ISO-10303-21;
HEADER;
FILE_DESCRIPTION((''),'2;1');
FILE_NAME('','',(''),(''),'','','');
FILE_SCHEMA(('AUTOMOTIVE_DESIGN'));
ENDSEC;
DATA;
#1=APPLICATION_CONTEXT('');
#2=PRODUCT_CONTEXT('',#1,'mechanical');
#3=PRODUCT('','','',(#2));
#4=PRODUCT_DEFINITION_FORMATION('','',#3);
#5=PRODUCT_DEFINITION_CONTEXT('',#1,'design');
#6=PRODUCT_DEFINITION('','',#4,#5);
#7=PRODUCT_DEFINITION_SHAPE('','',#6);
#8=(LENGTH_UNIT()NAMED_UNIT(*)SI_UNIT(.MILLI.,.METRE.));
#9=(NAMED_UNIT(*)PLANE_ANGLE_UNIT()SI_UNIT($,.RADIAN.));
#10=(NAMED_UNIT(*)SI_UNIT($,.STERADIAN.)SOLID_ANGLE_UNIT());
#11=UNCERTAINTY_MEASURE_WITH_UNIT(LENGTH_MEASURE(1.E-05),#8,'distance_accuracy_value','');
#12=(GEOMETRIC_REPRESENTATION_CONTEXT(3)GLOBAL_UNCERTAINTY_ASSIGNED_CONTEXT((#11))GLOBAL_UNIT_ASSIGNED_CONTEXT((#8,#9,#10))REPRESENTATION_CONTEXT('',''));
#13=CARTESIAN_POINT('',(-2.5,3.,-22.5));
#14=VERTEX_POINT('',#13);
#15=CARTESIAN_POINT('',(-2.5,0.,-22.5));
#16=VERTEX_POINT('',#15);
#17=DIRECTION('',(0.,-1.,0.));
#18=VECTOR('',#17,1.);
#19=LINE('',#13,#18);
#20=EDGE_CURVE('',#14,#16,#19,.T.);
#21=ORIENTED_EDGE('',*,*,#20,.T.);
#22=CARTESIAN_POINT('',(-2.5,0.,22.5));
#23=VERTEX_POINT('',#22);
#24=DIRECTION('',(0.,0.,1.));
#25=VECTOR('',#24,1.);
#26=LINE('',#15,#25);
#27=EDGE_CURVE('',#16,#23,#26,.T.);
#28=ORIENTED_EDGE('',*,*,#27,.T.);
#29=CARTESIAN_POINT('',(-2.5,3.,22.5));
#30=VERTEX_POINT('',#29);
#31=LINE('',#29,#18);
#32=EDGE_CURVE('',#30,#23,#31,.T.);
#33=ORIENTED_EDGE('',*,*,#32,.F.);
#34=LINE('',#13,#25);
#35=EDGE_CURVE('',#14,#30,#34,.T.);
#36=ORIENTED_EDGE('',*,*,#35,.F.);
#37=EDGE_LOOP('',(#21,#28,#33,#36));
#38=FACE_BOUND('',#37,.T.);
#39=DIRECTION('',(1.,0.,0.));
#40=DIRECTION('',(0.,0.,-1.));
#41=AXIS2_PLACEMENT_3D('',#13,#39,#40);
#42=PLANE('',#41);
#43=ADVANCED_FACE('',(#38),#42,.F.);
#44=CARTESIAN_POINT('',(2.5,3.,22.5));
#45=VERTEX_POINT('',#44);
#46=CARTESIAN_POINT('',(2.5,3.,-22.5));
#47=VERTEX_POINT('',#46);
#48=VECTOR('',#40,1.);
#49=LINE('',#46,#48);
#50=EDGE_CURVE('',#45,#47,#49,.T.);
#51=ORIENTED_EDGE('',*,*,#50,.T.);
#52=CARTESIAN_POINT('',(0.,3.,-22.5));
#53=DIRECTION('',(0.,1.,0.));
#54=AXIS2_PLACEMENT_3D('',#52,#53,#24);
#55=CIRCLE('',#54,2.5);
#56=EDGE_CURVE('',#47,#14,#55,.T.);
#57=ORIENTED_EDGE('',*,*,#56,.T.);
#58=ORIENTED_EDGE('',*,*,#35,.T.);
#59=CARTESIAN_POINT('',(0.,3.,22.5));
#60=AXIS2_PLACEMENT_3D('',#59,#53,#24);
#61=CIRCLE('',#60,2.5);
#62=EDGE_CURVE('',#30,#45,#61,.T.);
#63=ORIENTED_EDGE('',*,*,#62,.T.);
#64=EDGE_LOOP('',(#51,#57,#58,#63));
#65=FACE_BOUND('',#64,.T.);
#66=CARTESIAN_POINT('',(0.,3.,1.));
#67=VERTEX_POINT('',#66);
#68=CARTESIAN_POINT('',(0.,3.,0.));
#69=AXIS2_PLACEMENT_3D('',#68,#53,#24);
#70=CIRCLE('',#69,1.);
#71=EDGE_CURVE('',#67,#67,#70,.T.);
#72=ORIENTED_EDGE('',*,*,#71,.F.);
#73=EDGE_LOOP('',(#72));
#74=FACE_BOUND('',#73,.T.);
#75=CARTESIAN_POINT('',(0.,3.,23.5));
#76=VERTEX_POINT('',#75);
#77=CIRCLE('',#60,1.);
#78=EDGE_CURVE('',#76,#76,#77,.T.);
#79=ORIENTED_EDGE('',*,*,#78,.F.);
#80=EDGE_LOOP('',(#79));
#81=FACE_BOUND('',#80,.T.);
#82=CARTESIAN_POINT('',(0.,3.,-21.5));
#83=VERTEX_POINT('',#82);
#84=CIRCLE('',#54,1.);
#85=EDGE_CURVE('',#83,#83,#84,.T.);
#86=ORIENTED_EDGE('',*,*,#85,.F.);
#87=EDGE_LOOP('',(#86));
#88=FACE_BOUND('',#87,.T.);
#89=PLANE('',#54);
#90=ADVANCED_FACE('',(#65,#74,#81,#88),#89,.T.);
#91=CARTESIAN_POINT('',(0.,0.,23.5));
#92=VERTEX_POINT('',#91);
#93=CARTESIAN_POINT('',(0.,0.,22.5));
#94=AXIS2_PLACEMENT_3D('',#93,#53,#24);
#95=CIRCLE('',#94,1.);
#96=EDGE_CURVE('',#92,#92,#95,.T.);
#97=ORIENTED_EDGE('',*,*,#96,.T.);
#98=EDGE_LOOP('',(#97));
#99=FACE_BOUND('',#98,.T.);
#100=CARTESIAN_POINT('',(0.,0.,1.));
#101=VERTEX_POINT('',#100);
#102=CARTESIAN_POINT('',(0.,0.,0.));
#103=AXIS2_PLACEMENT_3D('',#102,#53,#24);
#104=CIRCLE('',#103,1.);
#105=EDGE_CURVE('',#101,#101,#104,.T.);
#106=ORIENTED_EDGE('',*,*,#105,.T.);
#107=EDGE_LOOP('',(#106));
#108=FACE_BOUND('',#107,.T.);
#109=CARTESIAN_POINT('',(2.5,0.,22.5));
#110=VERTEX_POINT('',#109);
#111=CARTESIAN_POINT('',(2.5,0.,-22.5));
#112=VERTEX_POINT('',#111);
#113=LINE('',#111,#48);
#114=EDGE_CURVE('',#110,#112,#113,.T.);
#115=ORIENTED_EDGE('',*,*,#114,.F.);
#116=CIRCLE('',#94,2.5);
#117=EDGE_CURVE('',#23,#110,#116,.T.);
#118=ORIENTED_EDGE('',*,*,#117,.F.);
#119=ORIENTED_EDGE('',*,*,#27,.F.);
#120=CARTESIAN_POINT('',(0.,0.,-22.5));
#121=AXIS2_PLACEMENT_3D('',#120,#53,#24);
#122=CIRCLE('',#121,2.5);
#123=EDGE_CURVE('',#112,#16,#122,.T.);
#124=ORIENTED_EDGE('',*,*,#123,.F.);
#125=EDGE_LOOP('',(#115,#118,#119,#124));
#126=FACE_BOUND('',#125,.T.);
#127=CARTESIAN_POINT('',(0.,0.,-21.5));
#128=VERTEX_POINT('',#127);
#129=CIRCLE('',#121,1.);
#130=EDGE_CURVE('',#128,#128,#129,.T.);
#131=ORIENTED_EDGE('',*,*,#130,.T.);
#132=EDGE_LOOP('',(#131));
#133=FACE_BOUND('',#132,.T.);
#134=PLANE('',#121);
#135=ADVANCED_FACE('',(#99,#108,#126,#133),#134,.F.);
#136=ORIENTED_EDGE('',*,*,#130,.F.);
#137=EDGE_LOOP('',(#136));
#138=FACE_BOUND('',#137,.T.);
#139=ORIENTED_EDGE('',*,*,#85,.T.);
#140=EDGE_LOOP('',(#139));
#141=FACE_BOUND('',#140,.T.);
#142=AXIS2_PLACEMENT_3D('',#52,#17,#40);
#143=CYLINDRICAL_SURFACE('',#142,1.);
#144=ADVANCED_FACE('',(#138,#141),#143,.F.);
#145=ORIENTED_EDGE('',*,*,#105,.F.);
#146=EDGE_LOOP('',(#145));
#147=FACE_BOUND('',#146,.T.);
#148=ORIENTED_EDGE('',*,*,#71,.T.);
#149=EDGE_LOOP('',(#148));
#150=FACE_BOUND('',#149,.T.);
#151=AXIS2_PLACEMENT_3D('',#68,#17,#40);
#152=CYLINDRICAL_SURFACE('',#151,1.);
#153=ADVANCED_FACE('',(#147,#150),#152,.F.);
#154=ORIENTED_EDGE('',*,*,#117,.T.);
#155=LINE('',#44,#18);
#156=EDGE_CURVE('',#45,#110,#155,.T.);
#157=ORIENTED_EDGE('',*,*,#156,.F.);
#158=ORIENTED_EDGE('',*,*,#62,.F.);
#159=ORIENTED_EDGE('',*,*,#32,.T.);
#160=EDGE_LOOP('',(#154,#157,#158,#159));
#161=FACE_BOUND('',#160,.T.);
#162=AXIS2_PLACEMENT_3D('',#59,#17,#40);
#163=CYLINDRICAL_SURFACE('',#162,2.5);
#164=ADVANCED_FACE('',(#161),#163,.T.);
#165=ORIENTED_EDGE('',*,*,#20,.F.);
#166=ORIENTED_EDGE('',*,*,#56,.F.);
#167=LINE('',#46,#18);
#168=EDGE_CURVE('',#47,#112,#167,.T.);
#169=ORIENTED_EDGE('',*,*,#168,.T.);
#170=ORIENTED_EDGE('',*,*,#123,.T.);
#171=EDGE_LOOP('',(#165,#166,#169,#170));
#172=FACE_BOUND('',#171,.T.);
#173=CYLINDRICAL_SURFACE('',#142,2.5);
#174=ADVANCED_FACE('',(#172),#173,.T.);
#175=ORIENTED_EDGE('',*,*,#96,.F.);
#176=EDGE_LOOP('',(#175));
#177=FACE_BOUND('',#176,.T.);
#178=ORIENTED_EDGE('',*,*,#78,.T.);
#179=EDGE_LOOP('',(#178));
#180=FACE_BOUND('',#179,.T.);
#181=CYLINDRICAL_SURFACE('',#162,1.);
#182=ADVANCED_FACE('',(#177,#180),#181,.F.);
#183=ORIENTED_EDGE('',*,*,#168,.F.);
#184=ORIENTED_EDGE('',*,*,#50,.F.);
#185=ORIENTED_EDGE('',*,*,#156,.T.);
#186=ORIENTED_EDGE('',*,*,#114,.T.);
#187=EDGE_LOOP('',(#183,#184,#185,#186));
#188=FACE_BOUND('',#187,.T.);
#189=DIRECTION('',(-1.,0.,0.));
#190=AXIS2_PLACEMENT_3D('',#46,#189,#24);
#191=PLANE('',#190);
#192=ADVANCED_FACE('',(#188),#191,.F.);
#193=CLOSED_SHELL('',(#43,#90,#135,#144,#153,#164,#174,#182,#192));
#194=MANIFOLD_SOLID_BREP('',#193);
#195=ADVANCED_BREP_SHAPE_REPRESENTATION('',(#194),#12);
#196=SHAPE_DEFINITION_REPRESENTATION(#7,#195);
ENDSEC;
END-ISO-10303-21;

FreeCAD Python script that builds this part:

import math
import FreeCAD as App
import Part
import Sketcher

V = App.Vector

doc = App.newDocument("Part")
body = doc.addObject("PartDesign::Body", "Body")

# Sketch on XZ plane
sketch1 = body.newObject("Sketcher::SketchObject", "Sketch")
sketch1.AttachmentSupport = (doc.getObject("XZ_Plane"), [""])
sketch1.MapMode = "FlatFace"
sketch1.addGeometry([
    Part.LineSegment(V(2.5, 22.5, 0), V(2.5, -22.5, 0)),  # 0
    Part.ArcOfCircle(Part.Circle(V(0, -22.5, 0), V(0, 0, 1), 2.5), math.radians(180), math.radians(360)),  # 1
    Part.LineSegment(V(-2.5, -22.5, 0), V(-2.5, 22.5, 0)),  # 2
    Part.ArcOfCircle(Part.Circle(V(0, 22.5, 0), V(0, 0, 1), 2.5), math.radians(0), math.radians(180)),  # 3
    Part.Circle(V(0, 22.5, 0), V(0, 0, 1), 1),  # 4
    Part.Circle(V(0, 0, 0), V(0, 0, 1), 1),  # 5
    Part.Circle(V(0, -22.5, 0), V(0, 0, 1), 1),  # 6
], False)
sketch1.addConstraint([
    Sketcher.Constraint("Tangent", 0, 2, 1, 2),
    Sketcher.Constraint("Tangent", 1, 1, 2, 1),
    Sketcher.Constraint("Tangent", 2, 2, 3, 2),
    Sketcher.Constraint("Tangent", 3, 1, 0, 1),
    Sketcher.Constraint("Vertical", 0),
    Sketcher.Constraint("Vertical", 2),
    Sketcher.Constraint("Coincident", 5, 3, -1, 1),
    Sketcher.Constraint("Coincident", 4, 3, 3, 3),
    Sketcher.Constraint("Coincident", 6, 3, 1, 3),
    Sketcher.Constraint("Equal", 4, 5),
    Sketcher.Constraint("Equal", 5, 6),
    Sketcher.Constraint("Symmetric", 1, 3, 3, 3, -1, 1),
    Sketcher.Constraint("Diameter", 4, 2.0),
    Sketcher.Constraint("Radius", 1, 2.5),
    Sketcher.Constraint("DistanceY", 0, 2, 0, 1, 45.0),
])
pad1 = body.newObject("PartDesign::Pad", "Pad")
pad1.Profile = sketch1
pad1.Length = 3
pad1.Reversed = True

doc.recompute()
